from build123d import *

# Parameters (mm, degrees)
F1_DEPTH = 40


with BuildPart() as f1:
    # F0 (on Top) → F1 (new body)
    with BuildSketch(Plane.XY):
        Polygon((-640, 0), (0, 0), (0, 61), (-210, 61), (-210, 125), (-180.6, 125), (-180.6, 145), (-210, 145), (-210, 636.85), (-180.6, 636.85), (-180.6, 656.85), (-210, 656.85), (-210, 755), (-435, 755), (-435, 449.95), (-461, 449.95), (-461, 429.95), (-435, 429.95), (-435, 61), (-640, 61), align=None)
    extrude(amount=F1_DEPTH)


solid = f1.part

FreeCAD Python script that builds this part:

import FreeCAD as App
import Part
import Sketcher

V = App.Vector


def add_polygon(sketch, points):
    """Adds a closed chain of lines whose ends are joined by coincident constraints."""
    first, n = sketch.GeometryCount, len(points)
    for a, b in zip(points, points[1:] + points[:1]):
        sketch.addGeometry(Part.LineSegment(App.Vector(*a, 0), App.Vector(*b, 0)), False)
    for i in range(n):
        sketch.addConstraint(Sketcher.Constraint("Coincident", first + i, 2, first + (i + 1) % n, 1))

doc = App.newDocument("Part")
body = doc.addObject("PartDesign::Body", "Body")

# Sketch on XY plane
sketch1 = body.newObject("Sketcher::SketchObject", "Sketch")
sketch1.AttachmentSupport = (doc.getObject("XY_Plane"), [""])
sketch1.MapMode = "FlatFace"
add_polygon(sketch1, [(-640, 0), (0, 0), (0, 61), (-210, 61), (-210, 125), (-181, 125), (-181, 145), (-210, 145), (-210, 637), (-181, 637), (-181, 657), (-210, 657), (-210, 755), (-435, 755), (-435, 450), (-461, 450), (-461, 430), (-435, 430), (-435, 61), (-640, 61)])  # lines 0-19
sketch1.addConstraint(Sketcher.Constraint("Horizontal", 0))
sketch1.addConstraint(Sketcher.Constraint("Vertical", 1))
sketch1.addConstraint(Sketcher.Constraint("Horizontal", 2))
sketch1.addConstraint(Sketcher.Constraint("Vertical", 3))
sketch1.addConstraint(Sketcher.Constraint("Horizontal", 4))
sketch1.addConstraint(Sketcher.Constraint("Vertical", 5))
sketch1.addConstraint(Sketcher.Constraint("Horizontal", 6))
sketch1.addConstraint(Sketcher.Constraint("Vertical", 7))
sketch1.addConstraint(Sketcher.Constraint("Horizontal", 8))
sketch1.addConstraint(Sketcher.Constraint("Vertical", 9))
sketch1.addConstraint(Sketcher.Constraint("Horizontal", 10))
sketch1.addConstraint(Sketcher.Constraint("Vertical", 11))
sketch1.addConstraint(Sketcher.Constraint("Horizontal", 12))
sketch1.addConstraint(Sketcher.Constraint("Vertical", 13))
sketch1.addConstraint(Sketcher.Constraint("Horizontal", 14))
sketch1.addConstraint(Sketcher.Constraint("Vertical", 15))
sketch1.addConstraint(Sketcher.Constraint("Horizontal", 16))
sketch1.addConstraint(Sketcher.Constraint("Vertical", 17))
sketch1.addConstraint(Sketcher.Constraint("Horizontal", 18))
sketch1.addConstraint(Sketcher.Constraint("Vertical", 19))
sketch1.addConstraint(Sketcher.Constraint("Coincident", 0, 2, -1, 1))
sketch1.addConstraint(Sketcher.Constraint("Horizontal", 2, 2, 17, 2))
sketch1.addConstraint(Sketcher.Constraint("Vertical", 3, 2, 6, 2))
sketch1.addConstraint(Sketcher.Constraint("Vertical", 5, 2, 8, 2))
sketch1.addConstraint(Sketcher.Constraint("Vertical", 7, 2, 10, 2))
sketch1.addConstraint(Sketcher.Constraint("Vertical", 13, 2, 16, 2))
sketch1.addConstraint(Sketcher.Constraint("Equal", 5, 9))
sketch1.addConstraint(Sketcher.Constraint("Equal", 9, 15))
sketch1.addConstraint(Sketcher.Constraint("DistanceX", 0, 1, 0, 2, 640.0))
sketch1.addConstraint(Sketcher.Constraint("DistanceX", 2, 2, 2, 1, 210.0))
sketch1.addConstraint(Sketcher.Constraint("DistanceX", 12, 2, 12, 1, 225.0))
sketch1.addConstraint(Sketcher.Constraint("DistanceX", 14, 2, 14, 1, 26.0))
sketch1.addConstraint(Sketcher.Constraint("DistanceY", 1, 1, 1, 2, 61.0))
sketch1.addConstraint(Sketcher.Constraint("DistanceY", 3, 1, 3, 2, 64.0))
sketch1.addConstraint(Sketcher.Constraint("DistanceY", 5, 1, 5, 2, 20.0))
sketch1.addConstraint(Sketcher.Constraint("DistanceX", 4, 1, 4, 2, 29.4))
sketch1.addConstraint(Sketcher.Constraint("DistanceY", -1, 1, 11, 2, 755.0))
sketch1.addConstraint(Sketcher.Constraint("DistanceY", 7, 1, 7, 2, 491.85))
sketch1.addConstraint(Sketcher.Constraint("DistanceY", 13, 2, 13, 1, 305.05))
pad1 = body.newObject("PartDesign::Pad", "Pad")
pad1.Profile = sketch1
pad1.Length = 40

doc.recompute()
